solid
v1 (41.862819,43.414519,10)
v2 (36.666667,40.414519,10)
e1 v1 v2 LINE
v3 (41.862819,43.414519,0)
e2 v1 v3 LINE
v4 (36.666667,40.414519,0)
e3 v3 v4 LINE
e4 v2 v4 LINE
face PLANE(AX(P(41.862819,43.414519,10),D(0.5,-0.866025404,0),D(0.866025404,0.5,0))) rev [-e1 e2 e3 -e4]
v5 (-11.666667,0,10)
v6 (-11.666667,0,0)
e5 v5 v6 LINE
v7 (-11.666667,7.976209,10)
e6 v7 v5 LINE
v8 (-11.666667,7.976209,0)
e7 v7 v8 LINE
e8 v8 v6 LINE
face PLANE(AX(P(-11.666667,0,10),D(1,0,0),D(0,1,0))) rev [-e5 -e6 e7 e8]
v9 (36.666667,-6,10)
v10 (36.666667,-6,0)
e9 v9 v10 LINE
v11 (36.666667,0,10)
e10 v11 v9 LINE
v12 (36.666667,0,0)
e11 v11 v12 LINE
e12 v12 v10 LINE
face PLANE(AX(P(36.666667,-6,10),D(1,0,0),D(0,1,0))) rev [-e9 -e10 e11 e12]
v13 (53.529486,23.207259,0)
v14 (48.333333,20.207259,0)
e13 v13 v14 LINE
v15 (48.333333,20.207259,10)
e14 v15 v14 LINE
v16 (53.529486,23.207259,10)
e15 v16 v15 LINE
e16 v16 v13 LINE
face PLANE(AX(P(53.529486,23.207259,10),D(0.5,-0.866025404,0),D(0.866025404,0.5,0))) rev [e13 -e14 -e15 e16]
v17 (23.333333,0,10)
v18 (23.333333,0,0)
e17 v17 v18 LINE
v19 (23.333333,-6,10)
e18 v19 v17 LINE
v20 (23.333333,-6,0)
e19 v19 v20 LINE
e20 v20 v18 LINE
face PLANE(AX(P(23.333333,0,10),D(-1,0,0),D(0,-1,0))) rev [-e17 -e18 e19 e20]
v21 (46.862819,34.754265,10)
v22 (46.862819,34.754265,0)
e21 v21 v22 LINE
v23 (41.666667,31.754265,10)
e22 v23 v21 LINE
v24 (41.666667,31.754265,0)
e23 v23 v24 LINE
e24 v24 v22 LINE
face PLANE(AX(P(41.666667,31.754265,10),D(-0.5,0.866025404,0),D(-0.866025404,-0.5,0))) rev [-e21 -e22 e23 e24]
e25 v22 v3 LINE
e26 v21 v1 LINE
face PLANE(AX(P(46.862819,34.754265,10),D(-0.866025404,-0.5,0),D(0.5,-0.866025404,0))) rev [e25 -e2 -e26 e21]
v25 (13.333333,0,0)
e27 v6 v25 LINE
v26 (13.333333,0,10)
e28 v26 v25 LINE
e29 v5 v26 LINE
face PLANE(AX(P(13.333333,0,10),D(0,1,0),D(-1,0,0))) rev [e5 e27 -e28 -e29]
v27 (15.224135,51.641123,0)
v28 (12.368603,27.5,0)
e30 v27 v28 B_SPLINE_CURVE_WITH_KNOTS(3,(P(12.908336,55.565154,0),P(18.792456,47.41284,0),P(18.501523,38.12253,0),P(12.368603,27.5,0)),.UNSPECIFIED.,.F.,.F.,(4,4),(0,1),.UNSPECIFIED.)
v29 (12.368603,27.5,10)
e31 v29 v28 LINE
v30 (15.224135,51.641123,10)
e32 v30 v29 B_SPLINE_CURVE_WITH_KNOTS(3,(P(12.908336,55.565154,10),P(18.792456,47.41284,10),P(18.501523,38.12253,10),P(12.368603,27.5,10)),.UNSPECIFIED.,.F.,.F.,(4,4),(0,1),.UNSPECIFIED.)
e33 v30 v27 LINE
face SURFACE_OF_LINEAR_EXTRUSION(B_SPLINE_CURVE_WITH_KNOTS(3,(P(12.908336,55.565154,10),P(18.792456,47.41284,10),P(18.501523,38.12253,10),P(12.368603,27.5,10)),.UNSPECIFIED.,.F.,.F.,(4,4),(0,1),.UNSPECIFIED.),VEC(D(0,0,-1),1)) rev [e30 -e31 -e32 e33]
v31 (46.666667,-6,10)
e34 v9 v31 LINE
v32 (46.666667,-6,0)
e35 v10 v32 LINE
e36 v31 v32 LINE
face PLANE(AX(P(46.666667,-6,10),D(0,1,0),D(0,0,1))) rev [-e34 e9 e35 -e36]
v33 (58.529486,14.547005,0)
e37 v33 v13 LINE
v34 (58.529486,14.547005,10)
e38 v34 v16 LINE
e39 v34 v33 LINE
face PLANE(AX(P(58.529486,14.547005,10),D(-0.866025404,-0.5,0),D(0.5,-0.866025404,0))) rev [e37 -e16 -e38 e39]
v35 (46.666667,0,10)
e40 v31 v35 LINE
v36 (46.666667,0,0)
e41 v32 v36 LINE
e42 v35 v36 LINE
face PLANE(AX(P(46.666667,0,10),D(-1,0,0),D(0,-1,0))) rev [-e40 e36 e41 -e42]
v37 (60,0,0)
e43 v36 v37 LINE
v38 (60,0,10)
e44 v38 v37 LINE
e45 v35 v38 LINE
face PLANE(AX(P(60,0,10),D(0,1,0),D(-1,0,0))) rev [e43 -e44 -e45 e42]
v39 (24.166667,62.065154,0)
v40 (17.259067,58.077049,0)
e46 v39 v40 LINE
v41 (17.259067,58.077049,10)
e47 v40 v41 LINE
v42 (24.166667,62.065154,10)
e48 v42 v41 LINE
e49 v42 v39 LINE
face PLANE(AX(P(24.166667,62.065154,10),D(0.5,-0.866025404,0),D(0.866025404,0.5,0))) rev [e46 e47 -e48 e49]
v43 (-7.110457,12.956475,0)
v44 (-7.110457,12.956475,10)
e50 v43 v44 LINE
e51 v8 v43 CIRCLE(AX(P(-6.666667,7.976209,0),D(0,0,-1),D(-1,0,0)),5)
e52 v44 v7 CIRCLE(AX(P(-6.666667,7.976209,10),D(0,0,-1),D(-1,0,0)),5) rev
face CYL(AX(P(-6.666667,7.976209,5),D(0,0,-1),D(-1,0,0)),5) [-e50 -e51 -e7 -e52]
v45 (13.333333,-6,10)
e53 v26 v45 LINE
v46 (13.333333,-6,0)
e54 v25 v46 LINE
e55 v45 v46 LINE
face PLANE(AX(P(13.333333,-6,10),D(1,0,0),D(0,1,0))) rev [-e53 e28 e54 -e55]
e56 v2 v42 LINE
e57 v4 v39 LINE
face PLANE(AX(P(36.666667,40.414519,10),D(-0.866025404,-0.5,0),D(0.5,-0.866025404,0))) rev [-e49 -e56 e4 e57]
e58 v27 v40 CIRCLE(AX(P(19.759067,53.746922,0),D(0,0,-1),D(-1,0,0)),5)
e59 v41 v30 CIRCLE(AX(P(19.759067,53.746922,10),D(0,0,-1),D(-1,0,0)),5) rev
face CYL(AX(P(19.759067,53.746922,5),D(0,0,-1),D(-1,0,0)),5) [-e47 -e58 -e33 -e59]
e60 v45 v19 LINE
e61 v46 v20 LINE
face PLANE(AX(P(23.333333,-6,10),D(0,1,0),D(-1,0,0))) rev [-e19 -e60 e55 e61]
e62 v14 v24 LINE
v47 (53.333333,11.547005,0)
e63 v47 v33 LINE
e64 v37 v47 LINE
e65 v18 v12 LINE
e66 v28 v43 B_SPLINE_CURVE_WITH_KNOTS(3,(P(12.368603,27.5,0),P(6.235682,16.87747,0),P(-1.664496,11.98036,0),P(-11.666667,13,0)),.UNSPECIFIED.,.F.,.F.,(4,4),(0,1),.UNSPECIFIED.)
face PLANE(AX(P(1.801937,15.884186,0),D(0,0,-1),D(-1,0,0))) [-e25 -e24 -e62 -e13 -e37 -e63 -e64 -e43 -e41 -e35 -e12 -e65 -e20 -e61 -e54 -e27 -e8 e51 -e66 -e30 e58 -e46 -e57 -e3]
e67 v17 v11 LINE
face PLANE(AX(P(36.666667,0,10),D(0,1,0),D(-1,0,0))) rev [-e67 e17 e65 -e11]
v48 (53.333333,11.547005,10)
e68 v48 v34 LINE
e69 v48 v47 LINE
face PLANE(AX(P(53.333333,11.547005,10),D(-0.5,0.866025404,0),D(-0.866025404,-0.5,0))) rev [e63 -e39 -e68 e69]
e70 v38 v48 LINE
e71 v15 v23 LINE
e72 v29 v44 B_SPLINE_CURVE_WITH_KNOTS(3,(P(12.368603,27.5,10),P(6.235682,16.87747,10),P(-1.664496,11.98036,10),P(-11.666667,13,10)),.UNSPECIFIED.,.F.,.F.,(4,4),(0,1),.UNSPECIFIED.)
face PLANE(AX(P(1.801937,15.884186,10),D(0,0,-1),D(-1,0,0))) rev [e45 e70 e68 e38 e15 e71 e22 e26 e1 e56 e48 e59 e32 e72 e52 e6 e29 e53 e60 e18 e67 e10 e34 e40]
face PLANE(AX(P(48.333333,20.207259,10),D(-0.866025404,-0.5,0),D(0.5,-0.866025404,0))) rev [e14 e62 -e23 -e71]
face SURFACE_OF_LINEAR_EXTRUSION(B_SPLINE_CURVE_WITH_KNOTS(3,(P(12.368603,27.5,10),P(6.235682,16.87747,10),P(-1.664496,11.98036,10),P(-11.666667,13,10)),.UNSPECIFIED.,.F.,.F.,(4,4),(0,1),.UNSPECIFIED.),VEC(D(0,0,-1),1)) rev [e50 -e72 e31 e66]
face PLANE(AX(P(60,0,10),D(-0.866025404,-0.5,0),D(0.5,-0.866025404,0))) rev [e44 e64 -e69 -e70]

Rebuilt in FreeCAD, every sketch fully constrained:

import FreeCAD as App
import Part
import Sketcher
Q = App.Units.Quantity


def edges_at(feature, points):
    """Names of the edges that pass closest to the given points."""
    edges = feature.Shape.Edges
    near = lambda p: min(range(len(edges)), key=lambda i: edges[i].distToShape(Part.Vertex(*p))[0])
    return sorted({f"Edge{near(p) + 1}" for p in points})

doc = App.newDocument("Part")
params = doc.addObject("Spreadsheet::Sheet", "Params")
for row, (alias, value) in enumerate([
    ("sketch1_width", "10 mm"),
    ("sketch1_width2", "25 mm"),
    ("sketch1_width3", "10 mm"),
    ("sketch1_height", "6 mm"),
    ("sketch1_height2", "6 mm"),
    ("pad1_length", "10 mm"),
    ("fillet_radius", "5 mm"),
], start=1):
    params.set(f"A{row}", alias)
    params.set(f"B{row}", "=" + value)
    params.setAlias(f"B{row}", alias)

body = doc.addObject("PartDesign::Body", "Body")

sketch1 = body.newObject("Sketcher::SketchObject", "Sketch")
sketch1.AttachmentSupport = (doc.getObject("XY_Plane"), [""])
sketch1.MapMode = "FlatFace"
sketch1.addGeometry([
    Part.LineSegment(App.Vector(36.666667, 0, 0), App.Vector(36.666667, -6, 0)),
    Part.LineSegment(App.Vector(36.666667, -6, 0), App.Vector(46.666667, -6, 0)),
    Part.LineSegment(App.Vector(46.666667, -6, 0), App.Vector(46.666667, 0, 0)),
    Part.LineSegment(App.Vector(46.666667, 0, 0), App.Vector(60, 0, 0)),
    Part.LineSegment(App.Vector(60, 0, 0), App.Vector(53.333333, 11.547005, 0)),
    Part.LineSegment(App.Vector(53.333333, 11.547005, 0), App.Vector(58.529486, 14.547005, 0)),
    Part.LineSegment(App.Vector(58.529486, 14.547005, 0), App.Vector(53.529486, 23.207259, 0)),
    Part.LineSegment(App.Vector(53.529486, 23.207259, 0), App.Vector(48.333333, 20.207259, 0)),
    Part.LineSegment(App.Vector(48.333333, 20.207259, 0), App.Vector(41.666667, 31.754265, 0)),
    Part.LineSegment(App.Vector(41.666667, 31.754265, 0), App.Vector(46.862819, 34.754265, 0)),
    Part.LineSegment(App.Vector(46.862819, 34.754265, 0), App.Vector(41.862819, 43.414519, 0)),
    Part.LineSegment(App.Vector(41.862819, 43.414519, 0), App.Vector(36.666667, 40.414519, 0)),
    Part.LineSegment(App.Vector(36.666667, 40.414519, 0), App.Vector(24.166667, 62.065154, 0)),
    Part.LineSegment(App.Vector(24.166667, 62.065154, 0), App.Vector(12.908336, 55.565154, 0)),
    Part.BSplineCurve([App.Vector(12.908336, 55.565154, 0), App.Vector(18.792456, 47.41284, 0), App.Vector(18.501523, 38.12253, 0), App.Vector(12.368603, 27.5, 0)], [4, 4], [0, 1], False, 3, [1, 1, 1, 1], False),
    Part.BSplineCurve([App.Vector(-11.666667, 13, 0), App.Vector(-1.664496, 11.98036, 0), App.Vector(6.235682, 16.87747, 0), App.Vector(12.368603, 27.5, 0)], [4, 4], [0, 1], False, 3, [1, 1, 1, 1], False),
    Part.LineSegment(App.Vector(-11.666667, 13, 0), App.Vector(-11.666667, 0, 0)),
    Part.LineSegment(App.Vector(-11.666667, 0, 0), App.Vector(13.333333, 0, 0)),
    Part.LineSegment(App.Vector(13.333333, 0, 0), App.Vector(13.333333, -6, 0)),
    Part.LineSegment(App.Vector(13.333333, -6, 0), App.Vector(23.333333, -6, 0)),
    Part.LineSegment(App.Vector(23.333333, -6, 0), App.Vector(23.333333, 0, 0)),
    Part.LineSegment(App.Vector(23.333333, 0, 0), App.Vector(36.666667, 0, 0)),
], False)
sketch1.addConstraint([
    Sketcher.Constraint("Block", 14),
    Sketcher.Constraint("Block", 15),
    Sketcher.Constraint("Coincident", 0, 2, 1, 1),
    Sketcher.Constraint("Coincident", 1, 2, 2, 1),
    Sketcher.Constraint("Coincident", 2, 2, 3, 1),
    Sketcher.Constraint("Coincident", 3, 2, 4, 1),
    Sketcher.Constraint("Coincident", 4, 2, 5, 1),
    Sketcher.Constraint("Coincident", 5, 2, 6, 1),
    Sketcher.Constraint("Coincident", 6, 2, 7, 1),
    Sketcher.Constraint("Coincident", 7, 2, 8, 1),
    Sketcher.Constraint("Coincident", 8, 2, 9, 1),
    Sketcher.Constraint("Coincident", 9, 2, 10, 1),
    Sketcher.Constraint("Coincident", 10, 2, 11, 1),
    Sketcher.Constraint("Coincident", 11, 2, 12, 1),
    Sketcher.Constraint("Coincident", 12, 2, 13, 1),
    Sketcher.Constraint("Coincident", 13, 2, 14, 1),
    Sketcher.Constraint("Coincident", 15, 1, 16, 1),
    Sketcher.Constraint("Coincident", 16, 2, 17, 1),
    Sketcher.Constraint("Coincident", 17, 2, 18, 1),
    Sketcher.Constraint("Coincident", 18, 2, 19, 1),
    Sketcher.Constraint("Coincident", 19, 2, 20, 1),
    Sketcher.Constraint("Coincident", 20, 2, 21, 1),
    Sketcher.Constraint("Coincident", 21, 2, 0, 1),
    Sketcher.Constraint("Vertical", 0),
    Sketcher.Constraint("Horizontal", 1),
    Sketcher.Constraint("Vertical", 2),
    Sketcher.Constraint("Horizontal", 3),
    Sketcher.Constraint("Vertical", 16),
    Sketcher.Constraint("Horizontal", 17),
    Sketcher.Constraint("Vertical", 18),
    Sketcher.Constraint("Horizontal", 19),
    Sketcher.Constraint("Vertical", 20),
    Sketcher.Constraint("Horizontal", 21),
    Sketcher.Constraint("PointOnObject", 2, 2, -1),
    Sketcher.Constraint("PointOnObject", 16, 2, -1),
    Sketcher.Constraint("PointOnObject", 20, 2, -1),
    Sketcher.Constraint("DistanceX", 1, 1, 1, 2, Q("10 mm")),
    Sketcher.Constraint("DistanceX", 17, 1, 17, 2, Q("25 mm")),
    Sketcher.Constraint("DistanceX", 19, 1, 19, 2, Q("10 mm")),
    Sketcher.Constraint("DistanceY", 0, 2, 0, 1, Q("6 mm")),
    Sketcher.Constraint("DistanceY", 18, 2, 18, 1, Q("6 mm")),
    Sketcher.Constraint("Distance", 5, Q("6 mm")),
    Sketcher.Constraint("Distance", 6, Q("10 mm")),
    Sketcher.Constraint("Distance", 7, Q("6 mm")),
    Sketcher.Constraint("Distance", 9, Q("6 mm")),
    Sketcher.Constraint("Distance", 10, Q("10 mm")),
    Sketcher.Constraint("Distance", 11, Q("6 mm")),
    Sketcher.Constraint("Distance", 12, Q("25 mm")),
    Sketcher.Constraint("Distance", 13, Q("13 mm")),
    Sketcher.Constraint("DistanceX", -1, 1, 3, 2, Q("60 mm")),
    Sketcher.Constraint("DistanceY", 4, 2, 5, 2, Q("3 mm")),
    Sketcher.Constraint("DistanceX", 6, 2, 5, 2, Q("5 mm")),
    Sketcher.Constraint("DistanceY", 7, 2, 6, 2, Q("3 mm")),
    Sketcher.Constraint("DistanceX", 8, 2, 2, 2, Q("5 mm")),
    Sketcher.Constraint("DistanceY", 8, 2, 9, 2, Q("3 mm")),
    Sketcher.Constraint("DistanceX", 10, 2, 9, 2, Q("5 mm")),
    Sketcher.Constraint("DistanceY", 11, 2, 10, 2, Q("3 mm")),
    Sketcher.Constraint("DistanceX", 17, 2, 7, 2, Q("35 mm")),
    Sketcher.Constraint("DistanceX", 12, 2, 11, 2, Q("12.5 mm")),
    Sketcher.Constraint("DistanceY", 13, 2, 12, 2, Q("6.5 mm")),
    Sketcher.Constraint("DistanceY", -1, 1, 6, 2, Q("23.207259 mm")),
])
sketch1.setExpression("Constraints[36]", "Params.sketch1_width")
sketch1.setExpression("Constraints[37]", "Params.sketch1_width2")
sketch1.setExpression("Constraints[38]", "Params.sketch1_width3")
sketch1.setExpression("Constraints[39]", "Params.sketch1_height")
sketch1.setExpression("Constraints[40]", "Params.sketch1_height2")
pad1 = body.newObject("PartDesign::Pad", "Pad")
pad1.Profile = sketch1
pad1.setExpression("Length", "Params.pad1_length")
doc.recompute()

fillet = body.newObject("PartDesign::Fillet", "Fillet")
fillet.Base = (pad1, edges_at(pad1, [(-11.667, 13, 5), (12.908, 55.565, 5)]))
fillet.setExpression("Radius", "Params.fillet_radius")

doc.recompute()
